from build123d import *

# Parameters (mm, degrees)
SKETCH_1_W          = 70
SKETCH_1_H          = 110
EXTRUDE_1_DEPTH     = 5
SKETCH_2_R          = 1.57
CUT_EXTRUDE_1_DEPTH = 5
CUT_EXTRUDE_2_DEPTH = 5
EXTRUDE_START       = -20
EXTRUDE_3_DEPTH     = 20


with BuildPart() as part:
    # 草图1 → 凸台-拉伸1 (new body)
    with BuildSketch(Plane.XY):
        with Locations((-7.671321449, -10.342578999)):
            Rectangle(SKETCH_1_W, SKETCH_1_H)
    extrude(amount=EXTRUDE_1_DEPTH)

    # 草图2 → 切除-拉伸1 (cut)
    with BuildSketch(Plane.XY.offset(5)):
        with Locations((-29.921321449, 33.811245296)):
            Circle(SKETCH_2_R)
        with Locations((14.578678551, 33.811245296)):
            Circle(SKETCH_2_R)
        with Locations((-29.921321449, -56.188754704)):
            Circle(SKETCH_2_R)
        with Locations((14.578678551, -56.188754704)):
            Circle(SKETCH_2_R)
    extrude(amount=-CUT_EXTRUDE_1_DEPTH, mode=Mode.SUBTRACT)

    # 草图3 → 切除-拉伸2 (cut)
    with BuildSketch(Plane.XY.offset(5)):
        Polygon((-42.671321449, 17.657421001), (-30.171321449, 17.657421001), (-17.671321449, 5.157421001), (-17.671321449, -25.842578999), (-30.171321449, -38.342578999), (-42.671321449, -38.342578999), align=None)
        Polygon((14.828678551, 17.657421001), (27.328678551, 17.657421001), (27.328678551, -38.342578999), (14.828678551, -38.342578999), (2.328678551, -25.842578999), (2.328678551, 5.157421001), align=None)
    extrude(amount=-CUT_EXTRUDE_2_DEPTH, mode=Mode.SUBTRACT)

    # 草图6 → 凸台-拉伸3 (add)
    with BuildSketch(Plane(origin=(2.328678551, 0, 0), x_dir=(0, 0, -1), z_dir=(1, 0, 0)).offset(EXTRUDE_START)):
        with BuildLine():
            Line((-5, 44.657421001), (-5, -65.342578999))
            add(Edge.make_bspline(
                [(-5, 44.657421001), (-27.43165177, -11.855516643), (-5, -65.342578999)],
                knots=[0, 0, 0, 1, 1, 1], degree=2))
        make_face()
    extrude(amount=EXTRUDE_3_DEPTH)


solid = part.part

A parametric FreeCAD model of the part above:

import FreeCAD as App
import Part
import Sketcher
from FreeCAD import Vector
Q = App.Units.Quantity


def add_polygon(sketch, points):
    """Adds a closed chain of lines whose ends are joined by coincident constraints."""
    first, n = sketch.GeometryCount, len(points)
    for a, b in zip(points, points[1:] + points[:1]):
        sketch.addGeometry(Part.LineSegment(App.Vector(*a, 0), App.Vector(*b, 0)), False)
    for i in range(n):
        sketch.addConstraint(Sketcher.Constraint("Coincident", first + i, 2, first + (i + 1) % n, 1))

doc = App.newDocument("Part")
body = doc.addObject("PartDesign::Body", "Body")

# Sketch on XY plane
sketch1 = body.newObject("Sketcher::SketchObject", "Sketch")
sketch1.AttachmentSupport = (doc.getObject("XY_Plane"), [""])
sketch1.MapMode = "FlatFace"
add_polygon(sketch1, [(-43, 45), (-43, -65), (27, -65), (27, 45)])  # lines 0-3
sketch1.addConstraint([
    Sketcher.Constraint("Vertical", 0),
    Sketcher.Constraint("Horizontal", 1),
    Sketcher.Constraint("Vertical", 2),
    Sketcher.Constraint("Horizontal", 3),
    Sketcher.Constraint("DistanceX", 1, 1, 1, 2, Q("70 mm")),
    Sketcher.Constraint("DistanceY", 0, 2, 0, 1, Q("110 mm")),
    Sketcher.Constraint("DistanceX", 0, 2, -1, 1, Q("42.671321 mm")),
    Sketcher.Constraint("DistanceY", 0, 2, -1, 1, Q("65.342579 mm")),
])
pad1 = body.newObject("PartDesign::Pad", "Pad")
pad1.Profile = sketch1
pad1.Length = 5

# Sketch on XY plane
sketch2 = body.newObject("Sketcher::SketchObject", "Sketch001")
sketch2.AttachmentSupport = (doc.getObject("XY_Plane"), [""])
sketch2.MapMode = "FlatFace"
sketch2.AttachmentOffset = App.Placement(Vector(0, 0, 5), App.Rotation())
sketch2.addGeometry([
    Part.Circle(Vector(-29.9, 33.8, 0), Vector(0, 0, 1), 1.6),
    Part.Circle(Vector(14.6, 33.8, 0), Vector(0, 0, 1), 1.6),
    Part.Circle(Vector(-29.9, -56.2, 0), Vector(0, 0, 1), 1.6),
    Part.Circle(Vector(14.6, -56.2, 0), Vector(0, 0, 1), 1.6),
], False)
sketch2.addConstraint([
    Sketcher.Constraint("Equal", 0, 1),
    Sketcher.Constraint("Equal", 1, 2),
    Sketcher.Constraint("Equal", 2, 3),
    Sketcher.Constraint("Horizontal", 0, 3, 1, 3),
    Sketcher.Constraint("Horizontal", 2, 3, 3, 3),
    Sketcher.Constraint("Vertical", 0, 3, 2, 3),
    Sketcher.Constraint("Vertical", 1, 3, 3, 3),
    Sketcher.Constraint("Diameter", 0, Q("3.14 mm")),
    Sketcher.Constraint("DistanceY", 2, 3, 0, 3, Q("90 mm")),
    Sketcher.Constraint("DistanceX", 0, 3, 1, 3, Q("44.5 mm")),
    Sketcher.Constraint("DistanceX", 0, 3, -1, 1, Q("29.921321 mm")),
    Sketcher.Constraint("DistanceY", -1, 1, 0, 3, Q("33.811245 mm")),
])
pocket1 = body.newObject("PartDesign::Pocket", "Pocket")
pocket1.Profile = sketch2
pocket1.Length = 5

# Sketch on XY plane
sketch3 = body.newObject("Sketcher::SketchObject", "Sketch002")
sketch3.AttachmentSupport = (doc.getObject("XY_Plane"), [""])
sketch3.MapMode = "FlatFace"
sketch3.AttachmentOffset = App.Placement(Vector(0, 0, 5), App.Rotation())
add_polygon(sketch3, [(-30, 18), (-43, 18), (-43, -38), (-30, -38), (-18, -26), (-18, 5)])  # lines 0-5
add_polygon(sketch3, [(27, 18), (15, 18), (2, 5), (2, -26), (15, -38), (27, -38)])  # lines 6-11
sketch3.addConstraint([
    Sketcher.Constraint("Horizontal", 0),
    Sketcher.Constraint("Vertical", 1),
    Sketcher.Constraint("Horizontal", 2),
    Sketcher.Constraint("Vertical", 4),
    Sketcher.Constraint("Horizontal", 6),
    Sketcher.Constraint("Vertical", 8),
    Sketcher.Constraint("Horizontal", 10),
    Sketcher.Constraint("Vertical", 11),
    Sketcher.Constraint("Perpendicular", 3, 5),
    Sketcher.Constraint("Perpendicular", 5, 7),
    Sketcher.Constraint("Perpendicular", 7, 9),
    Sketcher.Constraint("Horizontal", 5, 2, 6, 2),
    Sketcher.Constraint("Horizontal", 4, 2, 7, 2),
    Sketcher.Constraint("Horizontal", 3, 2, 8, 2),
    Sketcher.Constraint("Horizontal", 2, 2, 9, 2),
    Sketcher.Constraint("Vertical", 2, 2, 5, 2),
    Sketcher.Constraint("Vertical", 6, 2, 9, 2),
    Sketcher.Constraint("Equal", 2, 6),
    Sketcher.Constraint("DistanceY", 1, 2, 1, 1, Q("56 mm")),
    Sketcher.Constraint("DistanceY", 4, 1, 4, 2, Q("31 mm")),
    Sketcher.Constraint("DistanceX", 0, 2, 0, 1, Q("12.5 mm")),
    Sketcher.Constraint("DistanceX", 5, 2, 6, 2, Q("45 mm")),
    Sketcher.Constraint("DistanceX", 0, 2, -1, 1, Q("42.671321 mm")),
    Sketcher.Constraint("DistanceY", -1, 1, 0, 2, Q("17.657421 mm")),
])
pocket2 = body.newObject("PartDesign::Pocket", "Pocket001")
pocket2.Profile = sketch3
pocket2.Length = 5

# Sketch on YZ plane
sketch4 = body.newObject("Sketcher::SketchObject", "Sketch003")
sketch4.AttachmentSupport = (doc.getObject("YZ_Plane"), [""])
sketch4.MapMode = "FlatFace"
sketch4.AttachmentOffset = App.Placement(Vector(0, 0, -17.671321), App.Rotation())
sketch4.addGeometry([
    Part.LineSegment(Vector(-65.342579, 5, 0), Vector(44.657421, 5, 0)),
    Part.BSplineCurve([Vector(44.657421, 5, 0), Vector(-11.855517, 27.431652, 0), Vector(-65.342579, 5, 0)], [3, 3], [0, 1], False, 2, [1, 1, 1], False),
], False)
sketch4.addConstraint([
    Sketcher.Constraint("Block", 1),
    Sketcher.Constraint("Coincident", 0, 1, 1, 2),
    Sketcher.Constraint("Coincident", 1, 1, 0, 2),
])
pad2 = body.newObject("PartDesign::Pad", "Pad001")
pad2.Profile = sketch4
pad2.Length = 20

doc.recompute()
